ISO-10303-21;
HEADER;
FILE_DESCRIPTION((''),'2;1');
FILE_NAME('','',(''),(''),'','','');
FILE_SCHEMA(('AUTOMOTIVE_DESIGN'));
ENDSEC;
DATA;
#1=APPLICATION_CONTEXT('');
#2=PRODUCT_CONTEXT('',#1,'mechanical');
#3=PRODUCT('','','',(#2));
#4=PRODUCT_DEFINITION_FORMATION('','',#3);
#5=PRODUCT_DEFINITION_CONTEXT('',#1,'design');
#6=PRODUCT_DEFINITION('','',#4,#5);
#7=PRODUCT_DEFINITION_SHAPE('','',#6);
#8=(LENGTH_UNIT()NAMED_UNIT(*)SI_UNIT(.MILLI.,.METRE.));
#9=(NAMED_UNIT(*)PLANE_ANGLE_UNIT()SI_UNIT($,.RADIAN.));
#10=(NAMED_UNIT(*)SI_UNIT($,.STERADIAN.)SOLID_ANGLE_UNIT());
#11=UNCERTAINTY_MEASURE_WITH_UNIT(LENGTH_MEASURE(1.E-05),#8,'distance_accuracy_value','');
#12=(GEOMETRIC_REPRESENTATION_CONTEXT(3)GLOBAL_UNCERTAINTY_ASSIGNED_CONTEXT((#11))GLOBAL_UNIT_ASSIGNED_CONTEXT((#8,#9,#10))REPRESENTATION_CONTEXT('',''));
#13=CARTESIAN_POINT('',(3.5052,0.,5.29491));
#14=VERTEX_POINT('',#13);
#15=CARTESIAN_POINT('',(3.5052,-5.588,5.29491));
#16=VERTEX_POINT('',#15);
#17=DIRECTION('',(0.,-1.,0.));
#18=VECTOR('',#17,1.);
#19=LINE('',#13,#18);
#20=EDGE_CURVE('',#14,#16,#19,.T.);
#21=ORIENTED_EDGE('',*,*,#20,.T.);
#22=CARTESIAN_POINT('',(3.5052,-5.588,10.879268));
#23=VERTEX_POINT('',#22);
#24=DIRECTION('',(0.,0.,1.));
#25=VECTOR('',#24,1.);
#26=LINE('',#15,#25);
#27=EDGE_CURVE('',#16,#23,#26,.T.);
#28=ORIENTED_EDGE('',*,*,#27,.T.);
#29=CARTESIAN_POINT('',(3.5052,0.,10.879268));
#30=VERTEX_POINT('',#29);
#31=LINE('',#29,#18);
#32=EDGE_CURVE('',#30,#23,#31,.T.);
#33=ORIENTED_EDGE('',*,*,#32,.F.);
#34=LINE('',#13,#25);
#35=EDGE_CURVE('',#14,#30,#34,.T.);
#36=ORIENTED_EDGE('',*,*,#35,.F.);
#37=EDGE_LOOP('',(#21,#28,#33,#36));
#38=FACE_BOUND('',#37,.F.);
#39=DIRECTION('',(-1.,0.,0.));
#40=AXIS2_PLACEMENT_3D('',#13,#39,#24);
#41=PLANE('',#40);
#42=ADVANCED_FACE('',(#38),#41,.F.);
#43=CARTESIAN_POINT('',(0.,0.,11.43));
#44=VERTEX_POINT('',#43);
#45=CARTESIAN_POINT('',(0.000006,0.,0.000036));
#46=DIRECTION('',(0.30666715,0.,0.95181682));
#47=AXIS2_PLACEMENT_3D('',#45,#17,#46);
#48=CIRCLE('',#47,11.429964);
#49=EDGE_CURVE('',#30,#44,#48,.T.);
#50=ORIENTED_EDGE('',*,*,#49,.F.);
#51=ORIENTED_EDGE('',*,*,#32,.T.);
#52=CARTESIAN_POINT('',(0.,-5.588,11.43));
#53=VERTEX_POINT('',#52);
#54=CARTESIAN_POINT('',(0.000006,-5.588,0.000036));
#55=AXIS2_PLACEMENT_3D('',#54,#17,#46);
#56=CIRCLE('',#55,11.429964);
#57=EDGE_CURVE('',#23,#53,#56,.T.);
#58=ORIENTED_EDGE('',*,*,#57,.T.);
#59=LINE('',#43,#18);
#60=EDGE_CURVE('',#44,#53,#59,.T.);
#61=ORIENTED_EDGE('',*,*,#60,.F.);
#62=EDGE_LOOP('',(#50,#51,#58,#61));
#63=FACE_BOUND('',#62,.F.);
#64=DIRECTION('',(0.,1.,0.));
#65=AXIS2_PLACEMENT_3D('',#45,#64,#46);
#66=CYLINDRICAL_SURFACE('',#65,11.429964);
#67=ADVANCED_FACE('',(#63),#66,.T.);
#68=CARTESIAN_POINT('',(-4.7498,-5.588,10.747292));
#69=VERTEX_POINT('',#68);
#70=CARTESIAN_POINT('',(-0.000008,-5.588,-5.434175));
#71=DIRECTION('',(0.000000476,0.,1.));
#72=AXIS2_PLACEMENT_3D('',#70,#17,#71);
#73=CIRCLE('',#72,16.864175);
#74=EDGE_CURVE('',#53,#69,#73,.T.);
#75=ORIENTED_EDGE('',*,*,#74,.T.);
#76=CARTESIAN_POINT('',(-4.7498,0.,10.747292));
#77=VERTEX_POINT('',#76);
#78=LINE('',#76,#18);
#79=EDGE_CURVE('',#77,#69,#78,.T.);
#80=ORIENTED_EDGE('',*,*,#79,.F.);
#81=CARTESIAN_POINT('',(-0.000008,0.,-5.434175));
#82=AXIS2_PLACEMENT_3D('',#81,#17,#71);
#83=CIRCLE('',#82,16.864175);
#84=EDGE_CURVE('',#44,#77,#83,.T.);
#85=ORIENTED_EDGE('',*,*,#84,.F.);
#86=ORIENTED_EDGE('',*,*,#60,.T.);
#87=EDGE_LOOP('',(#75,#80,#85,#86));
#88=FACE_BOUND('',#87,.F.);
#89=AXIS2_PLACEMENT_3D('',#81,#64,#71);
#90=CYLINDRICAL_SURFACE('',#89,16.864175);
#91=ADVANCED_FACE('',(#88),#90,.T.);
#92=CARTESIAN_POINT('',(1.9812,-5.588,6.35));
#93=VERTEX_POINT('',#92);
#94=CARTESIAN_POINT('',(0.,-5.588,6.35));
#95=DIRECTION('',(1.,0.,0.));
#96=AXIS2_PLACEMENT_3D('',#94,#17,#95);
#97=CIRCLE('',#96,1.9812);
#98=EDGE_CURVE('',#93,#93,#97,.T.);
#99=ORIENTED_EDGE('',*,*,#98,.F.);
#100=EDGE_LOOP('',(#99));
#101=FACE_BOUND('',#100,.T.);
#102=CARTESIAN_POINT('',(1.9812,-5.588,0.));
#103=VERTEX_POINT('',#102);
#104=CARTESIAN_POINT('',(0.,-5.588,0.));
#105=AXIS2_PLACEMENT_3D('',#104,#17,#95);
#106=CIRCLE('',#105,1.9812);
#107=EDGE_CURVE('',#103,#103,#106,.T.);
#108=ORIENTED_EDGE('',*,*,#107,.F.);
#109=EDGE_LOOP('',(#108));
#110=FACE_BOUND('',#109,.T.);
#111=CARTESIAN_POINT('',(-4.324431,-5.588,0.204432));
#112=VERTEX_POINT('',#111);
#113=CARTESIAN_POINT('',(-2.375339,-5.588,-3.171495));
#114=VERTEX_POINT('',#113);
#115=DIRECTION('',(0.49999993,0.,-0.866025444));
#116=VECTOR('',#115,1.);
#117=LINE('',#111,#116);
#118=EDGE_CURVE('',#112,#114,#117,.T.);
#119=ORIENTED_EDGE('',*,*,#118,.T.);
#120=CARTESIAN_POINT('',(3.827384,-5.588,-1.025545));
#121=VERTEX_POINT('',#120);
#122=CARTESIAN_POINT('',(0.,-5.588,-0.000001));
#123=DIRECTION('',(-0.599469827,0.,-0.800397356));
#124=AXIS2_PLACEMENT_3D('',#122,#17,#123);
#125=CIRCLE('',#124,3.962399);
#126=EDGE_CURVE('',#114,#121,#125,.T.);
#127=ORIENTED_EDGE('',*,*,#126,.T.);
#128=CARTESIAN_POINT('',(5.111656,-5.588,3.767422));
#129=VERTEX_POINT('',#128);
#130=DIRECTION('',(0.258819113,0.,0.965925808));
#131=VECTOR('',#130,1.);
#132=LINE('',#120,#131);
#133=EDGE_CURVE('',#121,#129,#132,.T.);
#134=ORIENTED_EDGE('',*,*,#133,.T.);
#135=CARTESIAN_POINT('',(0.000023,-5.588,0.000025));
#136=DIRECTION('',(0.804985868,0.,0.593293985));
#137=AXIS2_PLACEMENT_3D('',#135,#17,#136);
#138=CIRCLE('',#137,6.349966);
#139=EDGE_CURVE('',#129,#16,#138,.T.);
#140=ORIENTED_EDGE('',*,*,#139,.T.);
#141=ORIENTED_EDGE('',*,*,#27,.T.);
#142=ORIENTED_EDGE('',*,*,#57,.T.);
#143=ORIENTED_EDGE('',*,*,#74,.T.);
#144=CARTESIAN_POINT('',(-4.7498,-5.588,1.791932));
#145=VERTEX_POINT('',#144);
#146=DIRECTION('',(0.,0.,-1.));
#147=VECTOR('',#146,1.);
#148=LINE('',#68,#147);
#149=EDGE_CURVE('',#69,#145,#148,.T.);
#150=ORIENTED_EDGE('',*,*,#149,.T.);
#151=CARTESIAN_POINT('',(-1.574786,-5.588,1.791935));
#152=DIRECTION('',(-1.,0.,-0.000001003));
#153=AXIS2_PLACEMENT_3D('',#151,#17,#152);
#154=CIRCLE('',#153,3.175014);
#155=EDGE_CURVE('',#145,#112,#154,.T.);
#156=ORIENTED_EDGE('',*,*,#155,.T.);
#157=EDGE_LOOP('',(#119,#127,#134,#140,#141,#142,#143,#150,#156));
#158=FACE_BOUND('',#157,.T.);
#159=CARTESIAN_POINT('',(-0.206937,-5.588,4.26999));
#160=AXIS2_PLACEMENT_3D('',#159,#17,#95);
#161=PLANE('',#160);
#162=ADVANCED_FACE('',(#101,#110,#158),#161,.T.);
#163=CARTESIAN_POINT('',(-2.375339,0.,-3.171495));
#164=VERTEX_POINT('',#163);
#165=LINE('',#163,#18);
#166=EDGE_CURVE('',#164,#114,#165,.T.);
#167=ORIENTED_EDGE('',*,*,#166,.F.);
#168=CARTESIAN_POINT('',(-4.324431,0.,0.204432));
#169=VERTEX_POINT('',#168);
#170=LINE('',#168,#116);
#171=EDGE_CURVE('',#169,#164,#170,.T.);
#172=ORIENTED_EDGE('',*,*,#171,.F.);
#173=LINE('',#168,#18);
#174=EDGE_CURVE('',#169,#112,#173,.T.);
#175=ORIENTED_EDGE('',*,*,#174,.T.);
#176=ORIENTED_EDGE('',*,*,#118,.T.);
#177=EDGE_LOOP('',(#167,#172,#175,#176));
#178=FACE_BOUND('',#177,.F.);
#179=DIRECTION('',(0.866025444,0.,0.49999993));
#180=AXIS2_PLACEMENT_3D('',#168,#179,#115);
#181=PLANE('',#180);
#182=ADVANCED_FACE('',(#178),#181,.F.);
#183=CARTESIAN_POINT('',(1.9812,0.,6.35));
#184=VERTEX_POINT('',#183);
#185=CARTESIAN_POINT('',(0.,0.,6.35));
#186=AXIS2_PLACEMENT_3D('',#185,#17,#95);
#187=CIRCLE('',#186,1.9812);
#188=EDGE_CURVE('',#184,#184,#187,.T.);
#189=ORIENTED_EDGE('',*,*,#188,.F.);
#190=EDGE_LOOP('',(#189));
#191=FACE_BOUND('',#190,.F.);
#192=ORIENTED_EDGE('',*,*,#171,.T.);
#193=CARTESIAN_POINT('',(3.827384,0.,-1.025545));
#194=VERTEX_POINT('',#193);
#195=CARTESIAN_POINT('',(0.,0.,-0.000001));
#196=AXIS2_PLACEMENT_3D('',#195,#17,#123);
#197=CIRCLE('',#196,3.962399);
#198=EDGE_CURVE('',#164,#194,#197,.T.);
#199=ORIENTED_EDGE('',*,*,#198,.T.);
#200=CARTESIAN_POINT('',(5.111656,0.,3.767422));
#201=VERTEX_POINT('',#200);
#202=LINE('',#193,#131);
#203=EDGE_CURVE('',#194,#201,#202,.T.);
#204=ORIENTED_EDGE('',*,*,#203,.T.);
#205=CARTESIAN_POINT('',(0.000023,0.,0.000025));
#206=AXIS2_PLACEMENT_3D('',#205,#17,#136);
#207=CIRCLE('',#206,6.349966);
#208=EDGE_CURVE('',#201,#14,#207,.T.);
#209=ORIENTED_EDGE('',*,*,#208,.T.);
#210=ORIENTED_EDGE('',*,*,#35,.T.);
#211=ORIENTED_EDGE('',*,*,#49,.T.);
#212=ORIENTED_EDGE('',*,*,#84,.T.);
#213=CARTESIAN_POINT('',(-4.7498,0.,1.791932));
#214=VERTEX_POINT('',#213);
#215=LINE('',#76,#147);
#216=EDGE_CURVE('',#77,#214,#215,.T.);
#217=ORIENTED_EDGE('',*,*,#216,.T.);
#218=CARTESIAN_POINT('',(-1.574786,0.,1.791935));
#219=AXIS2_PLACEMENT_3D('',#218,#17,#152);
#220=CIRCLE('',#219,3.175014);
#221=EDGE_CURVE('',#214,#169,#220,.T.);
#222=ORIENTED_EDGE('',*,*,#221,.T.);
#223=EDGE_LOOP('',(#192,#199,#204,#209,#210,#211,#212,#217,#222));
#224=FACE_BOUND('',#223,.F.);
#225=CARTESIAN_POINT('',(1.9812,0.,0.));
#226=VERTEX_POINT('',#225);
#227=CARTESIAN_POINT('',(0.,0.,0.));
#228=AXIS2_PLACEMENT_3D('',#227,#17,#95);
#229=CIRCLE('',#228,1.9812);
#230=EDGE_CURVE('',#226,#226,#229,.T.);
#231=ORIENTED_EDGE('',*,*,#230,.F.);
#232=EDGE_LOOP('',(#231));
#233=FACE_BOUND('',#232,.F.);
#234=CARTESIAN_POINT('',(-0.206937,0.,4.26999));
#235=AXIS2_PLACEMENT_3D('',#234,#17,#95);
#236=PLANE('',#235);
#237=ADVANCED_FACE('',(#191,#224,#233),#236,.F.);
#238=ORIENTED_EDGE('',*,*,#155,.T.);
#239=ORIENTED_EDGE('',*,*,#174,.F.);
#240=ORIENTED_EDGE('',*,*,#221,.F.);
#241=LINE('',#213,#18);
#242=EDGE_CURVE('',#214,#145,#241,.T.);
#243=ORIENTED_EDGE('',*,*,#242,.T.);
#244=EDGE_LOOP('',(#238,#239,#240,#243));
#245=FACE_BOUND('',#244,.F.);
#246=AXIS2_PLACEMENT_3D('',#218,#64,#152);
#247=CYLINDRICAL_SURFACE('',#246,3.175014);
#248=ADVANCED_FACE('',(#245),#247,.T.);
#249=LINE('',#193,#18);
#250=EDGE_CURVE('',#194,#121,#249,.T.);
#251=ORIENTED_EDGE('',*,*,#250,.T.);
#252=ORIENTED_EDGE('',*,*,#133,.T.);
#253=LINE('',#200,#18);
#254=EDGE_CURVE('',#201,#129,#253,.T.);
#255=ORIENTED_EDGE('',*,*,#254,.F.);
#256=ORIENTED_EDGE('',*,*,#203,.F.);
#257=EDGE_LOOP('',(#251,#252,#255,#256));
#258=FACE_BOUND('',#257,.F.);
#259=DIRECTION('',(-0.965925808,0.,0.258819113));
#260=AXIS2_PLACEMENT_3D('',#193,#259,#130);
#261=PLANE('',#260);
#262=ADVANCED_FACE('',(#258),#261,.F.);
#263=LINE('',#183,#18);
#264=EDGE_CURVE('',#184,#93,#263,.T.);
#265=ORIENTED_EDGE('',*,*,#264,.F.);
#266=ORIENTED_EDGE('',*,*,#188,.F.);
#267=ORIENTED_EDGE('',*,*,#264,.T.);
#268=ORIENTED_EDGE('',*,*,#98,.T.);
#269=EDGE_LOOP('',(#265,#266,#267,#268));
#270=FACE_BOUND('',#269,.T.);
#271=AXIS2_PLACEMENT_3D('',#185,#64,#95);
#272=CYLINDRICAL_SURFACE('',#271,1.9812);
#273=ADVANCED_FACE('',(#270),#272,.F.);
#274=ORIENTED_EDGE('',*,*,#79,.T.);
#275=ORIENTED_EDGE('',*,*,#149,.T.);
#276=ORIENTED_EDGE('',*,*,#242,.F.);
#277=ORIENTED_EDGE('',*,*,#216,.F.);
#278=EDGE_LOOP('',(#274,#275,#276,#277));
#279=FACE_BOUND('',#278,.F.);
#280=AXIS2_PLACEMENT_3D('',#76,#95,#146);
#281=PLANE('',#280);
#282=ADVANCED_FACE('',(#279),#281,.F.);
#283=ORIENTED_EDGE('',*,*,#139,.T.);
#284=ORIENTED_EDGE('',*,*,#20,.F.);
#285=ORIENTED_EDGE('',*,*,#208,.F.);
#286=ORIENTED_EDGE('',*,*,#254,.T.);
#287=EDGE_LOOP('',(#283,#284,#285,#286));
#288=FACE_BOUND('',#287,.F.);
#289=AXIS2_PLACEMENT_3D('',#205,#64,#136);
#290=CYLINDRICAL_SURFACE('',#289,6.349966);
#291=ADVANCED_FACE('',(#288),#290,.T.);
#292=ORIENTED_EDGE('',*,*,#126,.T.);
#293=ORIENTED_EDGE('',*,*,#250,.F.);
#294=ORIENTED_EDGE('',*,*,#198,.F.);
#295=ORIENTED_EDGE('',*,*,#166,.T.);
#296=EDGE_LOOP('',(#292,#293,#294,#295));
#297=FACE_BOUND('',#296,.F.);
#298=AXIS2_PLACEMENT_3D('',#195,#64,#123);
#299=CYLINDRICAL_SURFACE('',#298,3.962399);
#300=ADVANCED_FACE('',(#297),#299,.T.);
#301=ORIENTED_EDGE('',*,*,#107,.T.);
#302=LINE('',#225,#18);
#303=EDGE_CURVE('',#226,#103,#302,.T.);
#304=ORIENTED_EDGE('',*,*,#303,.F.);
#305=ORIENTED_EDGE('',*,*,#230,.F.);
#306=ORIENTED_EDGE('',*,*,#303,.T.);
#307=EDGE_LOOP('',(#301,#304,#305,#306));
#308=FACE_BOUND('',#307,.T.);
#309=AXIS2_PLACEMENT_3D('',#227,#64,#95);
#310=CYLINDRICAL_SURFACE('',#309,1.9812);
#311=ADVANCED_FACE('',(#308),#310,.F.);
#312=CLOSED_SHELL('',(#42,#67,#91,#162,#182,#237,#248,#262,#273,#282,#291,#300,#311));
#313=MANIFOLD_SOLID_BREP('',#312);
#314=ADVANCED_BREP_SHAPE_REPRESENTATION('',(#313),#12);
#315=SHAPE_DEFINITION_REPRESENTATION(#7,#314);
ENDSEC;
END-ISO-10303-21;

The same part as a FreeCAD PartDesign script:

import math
import FreeCAD as App
import Part
import Sketcher
Q = App.Units.Quantity

doc = App.newDocument("Part")
body = doc.addObject("PartDesign::Body", "Body")

# Sketch on XZ plane
sketch1 = body.newObject("Sketcher::SketchObject", "Sketch")
sketch1.AttachmentSupport = (doc.getObject("XZ_Plane"), [""])
sketch1.MapMode = "FlatFace"
sketch1.addGeometry([
    Part.LineSegment(App.Vector(-4.3, 0.2, 0), App.Vector(-2.4, -3.2, 0)),  # 0
    Part.ArcOfCircle(Part.Circle(App.Vector(0, 0, 0), App.Vector(0, 0, 1), 4), math.radians(-127), math.radians(-15)),  # 1
    Part.LineSegment(App.Vector(3.8, -1, 0), App.Vector(5.1, 3.8, 0)),  # 2
    Part.ArcOfCircle(Part.Circle(App.Vector(0, 0, 0), App.Vector(0, 0, 1), 6.3), math.radians(36), math.radians(56)),  # 3
    Part.LineSegment(App.Vector(3.5, 5.3, 0), App.Vector(3.5, 10.9, 0)),  # 4
    Part.ArcOfCircle(Part.Circle(App.Vector(0, 0, 0), App.Vector(0, 0, 1), 11.4), math.radians(72.14), math.radians(90)),  # 5
    Part.ArcOfCircle(Part.Circle(App.Vector(0, -5.4, 0), App.Vector(0, 0, 1), 16.9), math.radians(90), math.radians(106.36)),  # 6
    Part.LineSegment(App.Vector(-4.7, 10.7, 0), App.Vector(-4.7, 1.8, 0)),  # 7
    Part.ArcOfCircle(Part.Circle(App.Vector(-1.6, 1.8, 0), App.Vector(0, 0, 1), 3.2), math.radians(-180), math.radians(-150)),  # 8
    Part.Circle(App.Vector(0, 0, 0), App.Vector(0, 0, 1), 2),  # 9
    Part.Circle(App.Vector(0, 6.3, 0), App.Vector(0, 0, 1), 2),  # 10
], False)
sketch1.addConstraint([
    Sketcher.Constraint("Coincident", 0, 2, 1, 1),
    Sketcher.Constraint("Tangent", 1, 2, 2, 1),
    Sketcher.Constraint("Coincident", 2, 2, 3, 1),
    Sketcher.Constraint("Coincident", 3, 2, 4, 1),
    Sketcher.Constraint("Coincident", 4, 2, 5, 1),
    Sketcher.Constraint("Tangent", 5, 2, 6, 1),
    Sketcher.Constraint("Coincident", 6, 2, 7, 1),
    Sketcher.Constraint("Tangent", 7, 2, 8, 1),
    Sketcher.Constraint("Tangent", 8, 2, 0, 1),
    Sketcher.Constraint("Vertical", 4),
    Sketcher.Constraint("Vertical", 7),
    Sketcher.Constraint("Coincident", 1, 3, -1, 1),
    Sketcher.Constraint("Coincident", 9, 3, -1, 1),
    Sketcher.Constraint("Equal", 9, 10),
    Sketcher.Constraint("PointOnObject", 10, 3, -2),
    Sketcher.Constraint("PointOnObject", 5, 2, -2),
    Sketcher.Constraint("Diameter", 9, Q("0.156 in")),
    Sketcher.Constraint("Angle", 0, Q("-60.000005 deg")),
    Sketcher.Constraint("Angle", 2, Q("74.999996 deg")),
    Sketcher.Constraint("Radius", 1, Q("0.156 in")),
    Sketcher.Constraint("DistanceY", 10, 3, 5, 2, Q("0.2 in")),
    Sketcher.Constraint("DistanceY", -1, 1, 10, 3, Q("0.25 in")),
    Sketcher.Constraint("DistanceX", -1, 1, 3, 2, Q("0.138 in")),
    Sketcher.Constraint("DistanceX", 6, 2, -1, 1, Q("0.187 in")),
    Sketcher.Constraint("DistanceY", 8, 2, 7, 2, Q("0.0625 in")),
    Sketcher.Constraint("Radius", 3, Q("6.349966 mm")),
    Sketcher.Constraint("Radius", 5, Q("11.429964 mm")),
    Sketcher.Constraint("Radius", 6, Q("16.864175 mm")),
    Sketcher.Constraint("DistanceY", 7, 2, 7, 1, Q("8.95536 mm")),
    Sketcher.Constraint("DistanceY", 6, 3, 3, 3, Q("5.4342 mm")),
    Sketcher.Constraint("DistanceY", 5, 3, 8, 3, Q("1.791899 mm")),
    Sketcher.Constraint("DistanceY", 4, 1, 4, 2, Q("5.584358 mm")),
])
pad1 = body.newObject("PartDesign::Pad", "Pad")
pad1.Profile = sketch1
pad1.Length = Q("0.22 in")

doc.recompute()
